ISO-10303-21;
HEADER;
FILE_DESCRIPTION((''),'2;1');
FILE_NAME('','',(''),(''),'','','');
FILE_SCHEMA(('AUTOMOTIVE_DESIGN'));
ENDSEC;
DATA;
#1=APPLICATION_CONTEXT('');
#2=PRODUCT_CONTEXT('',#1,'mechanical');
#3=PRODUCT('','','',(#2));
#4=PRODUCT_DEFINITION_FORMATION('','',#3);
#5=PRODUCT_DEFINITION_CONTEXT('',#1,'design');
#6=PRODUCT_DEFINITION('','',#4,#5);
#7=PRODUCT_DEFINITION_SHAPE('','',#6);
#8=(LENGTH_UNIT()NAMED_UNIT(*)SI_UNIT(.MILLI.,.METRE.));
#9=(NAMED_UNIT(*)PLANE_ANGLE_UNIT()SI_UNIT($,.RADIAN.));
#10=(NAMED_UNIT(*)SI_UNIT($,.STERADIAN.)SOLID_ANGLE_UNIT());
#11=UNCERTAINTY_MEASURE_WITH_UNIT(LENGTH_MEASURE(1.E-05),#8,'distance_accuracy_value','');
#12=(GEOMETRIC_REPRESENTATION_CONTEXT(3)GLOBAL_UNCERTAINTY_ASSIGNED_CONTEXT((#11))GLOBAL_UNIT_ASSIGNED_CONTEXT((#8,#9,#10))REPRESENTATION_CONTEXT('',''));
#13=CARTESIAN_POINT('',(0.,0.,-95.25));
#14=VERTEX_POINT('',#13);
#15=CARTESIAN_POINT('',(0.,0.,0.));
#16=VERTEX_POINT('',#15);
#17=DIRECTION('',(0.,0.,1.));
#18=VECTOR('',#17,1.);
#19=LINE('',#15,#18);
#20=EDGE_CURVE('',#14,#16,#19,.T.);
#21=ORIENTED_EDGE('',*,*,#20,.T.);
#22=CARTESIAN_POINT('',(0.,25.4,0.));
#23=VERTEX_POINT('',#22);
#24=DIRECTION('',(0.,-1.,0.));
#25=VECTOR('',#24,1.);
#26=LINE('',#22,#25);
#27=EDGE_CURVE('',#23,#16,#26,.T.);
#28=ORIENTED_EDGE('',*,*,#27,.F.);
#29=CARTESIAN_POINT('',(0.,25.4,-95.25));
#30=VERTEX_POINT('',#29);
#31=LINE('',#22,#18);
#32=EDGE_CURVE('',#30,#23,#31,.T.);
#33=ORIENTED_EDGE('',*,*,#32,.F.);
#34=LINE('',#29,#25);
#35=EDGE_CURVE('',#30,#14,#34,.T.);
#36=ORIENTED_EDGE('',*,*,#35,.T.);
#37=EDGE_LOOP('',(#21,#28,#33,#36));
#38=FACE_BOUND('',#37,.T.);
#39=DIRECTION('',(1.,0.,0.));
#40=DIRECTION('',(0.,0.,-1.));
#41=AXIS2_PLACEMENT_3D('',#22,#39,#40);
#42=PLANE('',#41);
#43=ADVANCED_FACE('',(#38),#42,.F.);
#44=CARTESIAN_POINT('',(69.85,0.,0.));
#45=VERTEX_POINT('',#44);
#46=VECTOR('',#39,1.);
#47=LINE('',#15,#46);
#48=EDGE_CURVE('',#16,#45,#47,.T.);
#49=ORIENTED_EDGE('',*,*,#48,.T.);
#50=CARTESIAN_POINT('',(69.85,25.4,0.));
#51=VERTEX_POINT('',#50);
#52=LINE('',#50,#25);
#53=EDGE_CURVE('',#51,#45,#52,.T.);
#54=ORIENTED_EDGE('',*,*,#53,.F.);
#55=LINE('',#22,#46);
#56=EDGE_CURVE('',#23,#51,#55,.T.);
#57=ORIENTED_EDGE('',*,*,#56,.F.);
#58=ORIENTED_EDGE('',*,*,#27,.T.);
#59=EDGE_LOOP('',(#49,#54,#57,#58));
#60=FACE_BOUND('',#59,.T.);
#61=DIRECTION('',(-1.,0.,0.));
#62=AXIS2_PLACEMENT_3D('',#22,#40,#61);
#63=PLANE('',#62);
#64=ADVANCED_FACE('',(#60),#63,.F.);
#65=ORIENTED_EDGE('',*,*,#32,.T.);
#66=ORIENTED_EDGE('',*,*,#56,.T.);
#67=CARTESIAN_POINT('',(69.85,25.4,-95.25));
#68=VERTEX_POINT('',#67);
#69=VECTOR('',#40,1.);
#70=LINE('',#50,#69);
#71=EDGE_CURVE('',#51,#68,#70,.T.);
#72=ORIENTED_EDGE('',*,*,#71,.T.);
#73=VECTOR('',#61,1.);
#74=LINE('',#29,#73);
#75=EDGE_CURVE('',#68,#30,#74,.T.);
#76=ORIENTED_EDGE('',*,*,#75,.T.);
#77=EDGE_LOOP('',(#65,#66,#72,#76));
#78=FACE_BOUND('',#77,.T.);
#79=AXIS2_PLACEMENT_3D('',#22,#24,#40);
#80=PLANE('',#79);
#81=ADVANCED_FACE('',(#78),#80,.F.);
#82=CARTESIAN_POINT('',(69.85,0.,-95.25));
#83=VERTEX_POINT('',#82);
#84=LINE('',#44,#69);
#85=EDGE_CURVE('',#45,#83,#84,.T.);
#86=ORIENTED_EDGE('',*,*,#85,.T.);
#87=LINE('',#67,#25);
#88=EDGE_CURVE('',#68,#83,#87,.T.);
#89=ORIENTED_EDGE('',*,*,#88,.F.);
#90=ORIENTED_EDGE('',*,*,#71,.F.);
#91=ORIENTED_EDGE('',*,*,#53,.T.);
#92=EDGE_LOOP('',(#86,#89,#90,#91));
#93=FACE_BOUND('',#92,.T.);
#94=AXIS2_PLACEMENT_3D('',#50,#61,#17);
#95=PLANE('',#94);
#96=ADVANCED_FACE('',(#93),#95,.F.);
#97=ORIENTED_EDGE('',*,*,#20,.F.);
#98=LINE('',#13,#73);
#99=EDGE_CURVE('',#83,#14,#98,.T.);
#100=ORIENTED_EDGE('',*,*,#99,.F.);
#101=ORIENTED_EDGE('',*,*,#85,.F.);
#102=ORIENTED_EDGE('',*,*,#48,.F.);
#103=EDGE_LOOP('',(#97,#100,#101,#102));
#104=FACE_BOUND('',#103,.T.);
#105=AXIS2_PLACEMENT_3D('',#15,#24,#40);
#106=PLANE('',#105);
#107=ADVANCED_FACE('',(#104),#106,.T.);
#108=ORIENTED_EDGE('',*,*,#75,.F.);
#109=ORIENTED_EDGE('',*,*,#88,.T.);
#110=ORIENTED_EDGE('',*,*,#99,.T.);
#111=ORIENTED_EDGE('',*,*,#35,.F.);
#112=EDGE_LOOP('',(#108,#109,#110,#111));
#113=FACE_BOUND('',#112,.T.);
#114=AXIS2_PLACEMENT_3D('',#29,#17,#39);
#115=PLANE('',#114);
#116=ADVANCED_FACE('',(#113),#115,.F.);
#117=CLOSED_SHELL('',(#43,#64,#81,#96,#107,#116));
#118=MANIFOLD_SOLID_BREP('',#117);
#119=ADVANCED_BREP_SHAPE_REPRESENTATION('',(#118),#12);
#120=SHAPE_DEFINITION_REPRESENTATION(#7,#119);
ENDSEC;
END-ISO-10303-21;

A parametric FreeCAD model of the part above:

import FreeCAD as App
import Part
import Sketcher
from FreeCAD import Vector
Q = App.Units.Quantity

doc = App.newDocument("Part")
params = doc.addObject("Spreadsheet::Sheet", "Params")
for row, (alias, value) in enumerate([
    ("sketch1_width", "2.75 in"),
    ("sketch1_height", "3.75 in"),
    ("pad1_length", "1 in"),
], start=1):
    params.set(f"A{row}", alias)
    params.set(f"B{row}", "=" + value)
    params.setAlias(f"B{row}", alias)

body = doc.addObject("PartDesign::Body", "Body")

sketch1 = body.newObject("Sketcher::SketchObject", "Sketch")
sketch1.AttachmentSupport = (doc.getObject("XZ_Plane"), [""])
sketch1.MapMode = "FlatFace"
sketch1.addGeometry(Part.LineSegment(Vector(0, -95, 0), Vector(0, 0, 0)), False)
sketch1.addGeometry(Part.LineSegment(Vector(0, 0, 0), Vector(70, 0, 0)), False)
sketch1.addGeometry(Part.LineSegment(Vector(70, 0, 0), Vector(70, -95, 0)), False)
sketch1.addGeometry(Part.LineSegment(Vector(70, -95, 0), Vector(0, -95, 0)), False)
sketch1.addConstraint(Sketcher.Constraint("Coincident", 0, 2, 1, 1))
sketch1.addConstraint(Sketcher.Constraint("Coincident", 1, 2, 2, 1))
sketch1.addConstraint(Sketcher.Constraint("Coincident", 2, 2, 3, 1))
sketch1.addConstraint(Sketcher.Constraint("Coincident", 3, 2, 0, 1))
sketch1.addConstraint(Sketcher.Constraint("Vertical", 0))
sketch1.addConstraint(Sketcher.Constraint("Horizontal", 1))
sketch1.addConstraint(Sketcher.Constraint("Vertical", 2))
sketch1.addConstraint(Sketcher.Constraint("Horizontal", 3))
sketch1.addConstraint(Sketcher.Constraint("Coincident", 0, 2, -1, 1))
sketch1.addConstraint(Sketcher.Constraint("DistanceX", 1, 1, 1, 2, Q("2.75 in")))
sketch1.addConstraint(Sketcher.Constraint("DistanceY", 0, 1, 0, 2, Q("3.75 in")))
sketch1.setExpression("Constraints[9]", "Params.sketch1_width")
sketch1.setExpression("Constraints[10]", "Params.sketch1_height")
pad1 = body.newObject("PartDesign::Pad", "Pad")
pad1.Profile = sketch1
pad1.setExpression("Length", "Params.pad1_length")
pad1.Reversed = True

doc.recompute()
